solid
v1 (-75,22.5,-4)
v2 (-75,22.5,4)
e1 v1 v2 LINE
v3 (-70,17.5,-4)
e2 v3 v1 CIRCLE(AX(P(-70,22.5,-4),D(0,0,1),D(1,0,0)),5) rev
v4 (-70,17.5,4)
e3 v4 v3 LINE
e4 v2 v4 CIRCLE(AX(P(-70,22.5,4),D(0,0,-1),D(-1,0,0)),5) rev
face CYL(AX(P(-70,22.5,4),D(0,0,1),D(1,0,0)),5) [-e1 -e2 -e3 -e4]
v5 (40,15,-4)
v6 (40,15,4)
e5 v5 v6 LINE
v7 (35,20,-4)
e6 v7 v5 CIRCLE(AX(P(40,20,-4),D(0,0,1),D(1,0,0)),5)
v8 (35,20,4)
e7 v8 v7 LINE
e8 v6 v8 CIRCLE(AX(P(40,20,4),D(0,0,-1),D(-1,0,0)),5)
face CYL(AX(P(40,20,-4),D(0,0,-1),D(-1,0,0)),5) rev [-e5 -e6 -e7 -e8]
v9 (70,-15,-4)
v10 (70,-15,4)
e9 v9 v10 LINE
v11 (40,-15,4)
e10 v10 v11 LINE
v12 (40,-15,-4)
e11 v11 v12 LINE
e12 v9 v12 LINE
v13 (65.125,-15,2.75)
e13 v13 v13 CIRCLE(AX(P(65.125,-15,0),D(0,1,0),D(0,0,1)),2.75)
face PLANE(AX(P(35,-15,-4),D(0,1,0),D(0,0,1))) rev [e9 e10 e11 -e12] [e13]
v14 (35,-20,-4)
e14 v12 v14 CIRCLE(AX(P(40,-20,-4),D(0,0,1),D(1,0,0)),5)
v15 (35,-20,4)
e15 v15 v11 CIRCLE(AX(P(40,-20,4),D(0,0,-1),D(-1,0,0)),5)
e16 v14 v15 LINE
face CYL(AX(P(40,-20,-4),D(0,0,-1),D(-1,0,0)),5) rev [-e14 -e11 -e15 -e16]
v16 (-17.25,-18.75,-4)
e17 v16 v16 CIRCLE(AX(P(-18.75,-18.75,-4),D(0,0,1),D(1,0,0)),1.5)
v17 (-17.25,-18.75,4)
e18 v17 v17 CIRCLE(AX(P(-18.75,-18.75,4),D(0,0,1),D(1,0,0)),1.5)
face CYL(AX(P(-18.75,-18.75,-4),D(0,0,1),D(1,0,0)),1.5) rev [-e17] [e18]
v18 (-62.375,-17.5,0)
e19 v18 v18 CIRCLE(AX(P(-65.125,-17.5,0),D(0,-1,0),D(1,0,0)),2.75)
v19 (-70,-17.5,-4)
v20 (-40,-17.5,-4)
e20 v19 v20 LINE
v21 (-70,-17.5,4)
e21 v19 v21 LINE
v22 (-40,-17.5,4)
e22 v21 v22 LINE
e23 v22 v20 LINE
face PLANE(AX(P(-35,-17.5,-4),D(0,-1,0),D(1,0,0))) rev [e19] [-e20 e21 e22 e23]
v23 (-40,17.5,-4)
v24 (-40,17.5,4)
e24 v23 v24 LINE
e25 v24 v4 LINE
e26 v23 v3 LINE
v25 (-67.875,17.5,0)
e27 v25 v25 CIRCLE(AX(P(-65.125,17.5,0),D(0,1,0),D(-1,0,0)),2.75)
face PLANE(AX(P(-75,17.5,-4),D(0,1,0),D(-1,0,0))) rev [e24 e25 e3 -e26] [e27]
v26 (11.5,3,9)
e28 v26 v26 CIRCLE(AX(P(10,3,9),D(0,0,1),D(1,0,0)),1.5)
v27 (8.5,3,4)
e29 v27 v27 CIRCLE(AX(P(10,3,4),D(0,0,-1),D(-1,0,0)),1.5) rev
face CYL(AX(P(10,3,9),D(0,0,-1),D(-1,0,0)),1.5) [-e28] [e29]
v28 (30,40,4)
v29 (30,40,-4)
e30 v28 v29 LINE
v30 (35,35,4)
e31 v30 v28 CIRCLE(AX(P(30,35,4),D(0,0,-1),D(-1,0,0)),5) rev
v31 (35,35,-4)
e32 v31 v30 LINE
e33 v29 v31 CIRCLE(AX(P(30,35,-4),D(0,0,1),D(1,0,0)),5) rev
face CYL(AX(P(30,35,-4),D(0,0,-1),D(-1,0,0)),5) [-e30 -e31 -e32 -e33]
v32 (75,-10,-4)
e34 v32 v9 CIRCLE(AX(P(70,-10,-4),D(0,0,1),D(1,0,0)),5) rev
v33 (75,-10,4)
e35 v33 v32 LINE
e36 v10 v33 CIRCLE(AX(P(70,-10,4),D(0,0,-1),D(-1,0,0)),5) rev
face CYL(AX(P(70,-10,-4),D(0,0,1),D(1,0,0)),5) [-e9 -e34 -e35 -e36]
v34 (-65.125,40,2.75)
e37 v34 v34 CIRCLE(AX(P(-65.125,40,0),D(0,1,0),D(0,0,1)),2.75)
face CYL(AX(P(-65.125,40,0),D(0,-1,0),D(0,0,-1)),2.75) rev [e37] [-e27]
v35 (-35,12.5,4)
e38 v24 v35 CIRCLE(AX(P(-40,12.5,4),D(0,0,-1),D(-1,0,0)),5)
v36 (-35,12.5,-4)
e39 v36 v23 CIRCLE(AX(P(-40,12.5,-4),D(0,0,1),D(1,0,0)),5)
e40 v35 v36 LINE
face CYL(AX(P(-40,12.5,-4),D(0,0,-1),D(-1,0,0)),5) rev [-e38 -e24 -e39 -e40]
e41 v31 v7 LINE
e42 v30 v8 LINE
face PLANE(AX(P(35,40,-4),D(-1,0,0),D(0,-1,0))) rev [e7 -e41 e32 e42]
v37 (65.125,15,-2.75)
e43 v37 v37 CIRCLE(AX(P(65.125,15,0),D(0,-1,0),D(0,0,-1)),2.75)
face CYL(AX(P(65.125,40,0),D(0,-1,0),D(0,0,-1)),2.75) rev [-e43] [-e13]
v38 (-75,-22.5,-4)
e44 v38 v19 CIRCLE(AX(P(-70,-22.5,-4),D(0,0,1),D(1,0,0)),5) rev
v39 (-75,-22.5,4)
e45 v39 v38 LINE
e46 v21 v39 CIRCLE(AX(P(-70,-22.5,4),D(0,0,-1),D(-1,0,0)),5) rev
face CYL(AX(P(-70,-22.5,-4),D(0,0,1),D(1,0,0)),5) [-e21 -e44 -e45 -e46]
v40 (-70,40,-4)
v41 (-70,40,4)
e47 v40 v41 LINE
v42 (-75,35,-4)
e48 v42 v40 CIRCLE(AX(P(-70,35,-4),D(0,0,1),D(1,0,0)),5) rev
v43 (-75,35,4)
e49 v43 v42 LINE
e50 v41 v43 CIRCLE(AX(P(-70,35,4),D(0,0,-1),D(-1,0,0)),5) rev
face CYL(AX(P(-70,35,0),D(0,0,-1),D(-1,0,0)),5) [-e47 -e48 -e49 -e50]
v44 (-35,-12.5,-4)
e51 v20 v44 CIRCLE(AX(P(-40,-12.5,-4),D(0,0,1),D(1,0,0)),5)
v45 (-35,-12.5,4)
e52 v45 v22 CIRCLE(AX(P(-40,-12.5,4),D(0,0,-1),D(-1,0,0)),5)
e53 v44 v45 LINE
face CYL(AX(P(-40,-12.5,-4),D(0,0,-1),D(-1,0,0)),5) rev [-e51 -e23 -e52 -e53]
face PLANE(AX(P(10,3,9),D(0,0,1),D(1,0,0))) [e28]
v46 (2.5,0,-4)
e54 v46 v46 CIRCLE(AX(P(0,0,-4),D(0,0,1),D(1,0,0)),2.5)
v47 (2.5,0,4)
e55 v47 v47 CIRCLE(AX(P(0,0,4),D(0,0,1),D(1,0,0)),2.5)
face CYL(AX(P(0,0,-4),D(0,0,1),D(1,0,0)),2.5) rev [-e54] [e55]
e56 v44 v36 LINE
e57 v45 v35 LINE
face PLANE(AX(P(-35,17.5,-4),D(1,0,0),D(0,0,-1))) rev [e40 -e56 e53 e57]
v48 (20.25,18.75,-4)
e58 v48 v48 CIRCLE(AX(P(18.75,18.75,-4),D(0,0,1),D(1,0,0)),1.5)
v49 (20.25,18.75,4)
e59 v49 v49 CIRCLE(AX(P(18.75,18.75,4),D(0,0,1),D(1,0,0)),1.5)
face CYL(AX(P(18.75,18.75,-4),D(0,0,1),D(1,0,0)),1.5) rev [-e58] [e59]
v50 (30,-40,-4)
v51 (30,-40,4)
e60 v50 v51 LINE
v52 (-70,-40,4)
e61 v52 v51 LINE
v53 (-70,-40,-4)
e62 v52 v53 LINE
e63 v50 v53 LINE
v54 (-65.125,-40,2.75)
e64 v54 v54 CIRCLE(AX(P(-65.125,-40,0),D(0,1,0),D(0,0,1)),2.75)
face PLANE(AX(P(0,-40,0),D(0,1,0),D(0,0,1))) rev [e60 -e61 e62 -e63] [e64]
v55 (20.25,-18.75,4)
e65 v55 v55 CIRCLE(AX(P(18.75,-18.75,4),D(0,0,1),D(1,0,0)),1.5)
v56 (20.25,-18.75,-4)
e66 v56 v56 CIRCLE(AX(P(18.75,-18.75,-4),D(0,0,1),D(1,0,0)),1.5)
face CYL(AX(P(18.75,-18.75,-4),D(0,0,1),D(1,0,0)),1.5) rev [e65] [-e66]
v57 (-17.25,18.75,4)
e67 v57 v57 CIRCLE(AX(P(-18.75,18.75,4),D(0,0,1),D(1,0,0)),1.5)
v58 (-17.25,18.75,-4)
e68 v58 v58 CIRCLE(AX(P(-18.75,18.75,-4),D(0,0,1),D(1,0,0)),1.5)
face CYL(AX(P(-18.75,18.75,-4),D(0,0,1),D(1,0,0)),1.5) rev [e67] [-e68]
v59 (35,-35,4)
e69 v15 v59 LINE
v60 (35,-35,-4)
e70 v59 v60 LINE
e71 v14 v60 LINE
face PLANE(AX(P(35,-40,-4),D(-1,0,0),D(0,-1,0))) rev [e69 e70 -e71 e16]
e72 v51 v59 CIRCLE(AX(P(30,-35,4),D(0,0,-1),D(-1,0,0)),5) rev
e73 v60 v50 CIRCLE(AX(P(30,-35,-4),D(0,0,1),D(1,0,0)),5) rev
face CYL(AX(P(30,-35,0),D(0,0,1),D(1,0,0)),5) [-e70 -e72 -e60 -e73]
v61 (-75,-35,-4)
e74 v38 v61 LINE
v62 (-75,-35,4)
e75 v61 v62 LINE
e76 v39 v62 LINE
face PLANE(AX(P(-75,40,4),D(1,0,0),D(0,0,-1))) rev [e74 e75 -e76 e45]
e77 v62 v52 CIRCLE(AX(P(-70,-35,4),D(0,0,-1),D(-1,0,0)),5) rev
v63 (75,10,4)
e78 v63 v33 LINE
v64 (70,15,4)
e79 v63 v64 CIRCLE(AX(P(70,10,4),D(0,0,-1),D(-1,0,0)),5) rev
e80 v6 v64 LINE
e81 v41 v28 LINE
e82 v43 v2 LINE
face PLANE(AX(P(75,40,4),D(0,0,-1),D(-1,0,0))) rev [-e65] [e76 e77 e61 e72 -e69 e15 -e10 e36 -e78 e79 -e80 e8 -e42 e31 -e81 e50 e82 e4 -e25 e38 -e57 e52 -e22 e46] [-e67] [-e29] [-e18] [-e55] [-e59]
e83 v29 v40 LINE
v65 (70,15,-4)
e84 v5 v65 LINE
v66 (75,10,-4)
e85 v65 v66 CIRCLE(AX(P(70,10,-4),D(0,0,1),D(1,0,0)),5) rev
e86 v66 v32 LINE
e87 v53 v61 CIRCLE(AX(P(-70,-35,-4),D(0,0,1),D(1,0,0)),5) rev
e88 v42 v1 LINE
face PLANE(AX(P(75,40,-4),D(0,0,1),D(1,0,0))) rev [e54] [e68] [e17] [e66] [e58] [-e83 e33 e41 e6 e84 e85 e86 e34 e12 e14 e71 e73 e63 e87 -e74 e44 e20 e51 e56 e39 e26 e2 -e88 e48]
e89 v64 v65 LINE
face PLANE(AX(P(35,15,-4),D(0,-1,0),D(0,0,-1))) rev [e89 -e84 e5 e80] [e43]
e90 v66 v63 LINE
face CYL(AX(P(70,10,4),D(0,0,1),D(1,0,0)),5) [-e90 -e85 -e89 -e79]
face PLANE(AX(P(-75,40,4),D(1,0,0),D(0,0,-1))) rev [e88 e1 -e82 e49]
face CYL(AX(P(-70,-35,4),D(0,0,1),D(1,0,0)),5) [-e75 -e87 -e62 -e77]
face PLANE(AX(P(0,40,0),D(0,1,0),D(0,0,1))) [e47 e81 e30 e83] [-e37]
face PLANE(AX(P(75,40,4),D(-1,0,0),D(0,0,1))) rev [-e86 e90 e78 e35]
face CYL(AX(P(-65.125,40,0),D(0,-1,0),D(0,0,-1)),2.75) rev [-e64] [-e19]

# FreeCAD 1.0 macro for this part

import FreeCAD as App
import Part
import Sketcher
from FreeCAD import Vector
Q = App.Units.Quantity


def edges_at(feature, points):
    """Names of the edges that pass closest to the given points."""
    edges = feature.Shape.Edges
    near = lambda p: min(range(len(edges)), key=lambda i: edges[i].distToShape(Part.Vertex(*p))[0])
    return sorted({f"Edge{near(p) + 1}" for p in points})


def add_polygon(sketch, points):
    """Adds a closed chain of lines whose ends are joined by coincident constraints."""
    first, n = sketch.GeometryCount, len(points)
    for a, b in zip(points, points[1:] + points[:1]):
        sketch.addGeometry(Part.LineSegment(App.Vector(*a, 0), App.Vector(*b, 0)), False)
    for i in range(n):
        sketch.addConstraint(Sketcher.Constraint("Coincident", first + i, 2, first + (i + 1) % n, 1))

doc = App.newDocument("Part")
body = doc.addObject("PartDesign::Body", "Body")

# Sketch on XZ plane
sketch1 = doc.addObject("Sketcher::SketchObject", "Sketch")
body.addObject(sketch1)
sketch1.AttachmentSupport = (doc.XZ_Plane, [""])
sketch1.MapMode = "FlatFace"
add_polygon(sketch1, [(-75, -4), (-75, 4), (75, 4), (75, -4)])  # lines 0-3
sketch1.addGeometry(Part.Circle(Vector(-65.125, 0, 0), Vector(0, 0, 1), 2.75), False)  # 4
sketch1.addGeometry(Part.Circle(Vector(65.125, 0, 0), Vector(0, 0, 1), 2.75), False)  # 5
sketch1.addConstraint(Sketcher.Constraint("Vertical", 0))
sketch1.addConstraint(Sketcher.Constraint("Horizontal", 1))
sketch1.addConstraint(Sketcher.Constraint("Vertical", 2))
sketch1.addConstraint(Sketcher.Constraint("Horizontal", 3))
sketch1.addConstraint(Sketcher.Constraint("Equal", 4, 5))
sketch1.addConstraint(Sketcher.Constraint("Symmetric", 4, 3, 5, 3, -1, 1))
sketch1.addConstraint(Sketcher.Constraint("Symmetric", 0, 2, 2, 2, -1, 1))
sketch1.addConstraint(Sketcher.Constraint("PointOnObject", 4, 3, -1))
sketch1.addConstraint(Sketcher.Constraint("Diameter", 4, Q("5.5 mm")))
sketch1.addConstraint(Sketcher.Constraint("DistanceX", 1, 1, 1, 2, Q("150 mm")))
sketch1.addConstraint(Sketcher.Constraint("DistanceY", 0, 1, 0, 2, Q("8 mm")))
sketch1.addConstraint(Sketcher.Constraint("DistanceX", 4, 3, 5, 3, Q("130.25 mm")))
pad1 = doc.addObject("PartDesign::Pad", "Pad")
body.addObject(pad1)
pad1.Profile = sketch1
pad1.Length = 80
pad1.Midplane = True

# Sketch on XY plane
sketch2 = doc.addObject("Sketcher::SketchObject", "Sketch001")
body.addObject(sketch2)
sketch2.AttachmentSupport = (doc.XY_Plane, [""])
sketch2.MapMode = "FlatFace"
sketch2.AttachmentOffset = App.Placement(Vector(0, 0, 4), App.Rotation())
sketch2.addGeometry(Part.Circle(Vector(-18.75, 18.75, 0), Vector(0, 0, 1), 1.5), False)
sketch2.addGeometry(Part.Circle(Vector(18.75, 18.75, 0), Vector(0, 0, 1), 1.5), False)
sketch2.addGeometry(Part.Circle(Vector(18.75, -18.75, 0), Vector(0, 0, 1), 1.5), False)
sketch2.addGeometry(Part.Circle(Vector(-18.75, -18.75, 0), Vector(0, 0, 1), 1.5), False)
sketch2.addConstraint(Sketcher.Constraint("Equal", 0, 1))
sketch2.addConstraint(Sketcher.Constraint("Equal", 1, 2))
sketch2.addConstraint(Sketcher.Constraint("Equal", 2, 3))
sketch2.addConstraint(Sketcher.Constraint("Symmetric", 0, 3, 2, 3, -1, 1))
sketch2.addConstraint(Sketcher.Constraint("Symmetric", 1, 3, 3, 3, -1, 1))
sketch2.addConstraint(Sketcher.Constraint("Symmetric", 0, 3, 1, 3, -2))
sketch2.addConstraint(Sketcher.Constraint("Diameter", 0, Q("3 mm")))
sketch2.addConstraint(Sketcher.Constraint("DistanceX", 0, 3, 1, 3, Q("37.5 mm")))
sketch2.addConstraint(Sketcher.Constraint("DistanceY", 2, 3, 1, 3, Q("37.5 mm")))
pocket1 = doc.addObject("PartDesign::Pocket", "Pocket")
body.addObject(pocket1)
pocket1.Profile = sketch2
pocket1.Type = "ThroughAll"

# Sketch on XY plane
sketch3 = doc.addObject("Sketcher::SketchObject", "Sketch002")
body.addObject(sketch3)
sketch3.AttachmentSupport = (doc.XY_Plane, [""])
sketch3.MapMode = "FlatFace"
sketch3.AttachmentOffset = App.Placement(Vector(0, 0, 4), App.Rotation())
add_polygon(sketch3, [(-75, 17.5), (-75, -17.5), (-35, -17.5), (-35, 17.5)])  # lines 0-3
add_polygon(sketch3, [(35, 40), (35, 15), (75, 15), (75, 40)])  # lines 4-7
add_polygon(sketch3, [(35, -15), (35, -40), (75, -40), (75, -15)])  # lines 8-11
sketch3.addConstraint(Sketcher.Constraint("Vertical", 0))
sketch3.addConstraint(Sketcher.Constraint("Horizontal", 1))
sketch3.addConstraint(Sketcher.Constraint("Vertical", 2))
sketch3.addConstraint(Sketcher.Constraint("Horizontal", 3))
sketch3.addConstraint(Sketcher.Constraint("Vertical", 4))
sketch3.addConstraint(Sketcher.Constraint("Horizontal", 5))
sketch3.addConstraint(Sketcher.Constraint("Vertical", 6))
sketch3.addConstraint(Sketcher.Constraint("Horizontal", 7))
sketch3.addConstraint(Sketcher.Constraint("Vertical", 8))
sketch3.addConstraint(Sketcher.Constraint("Horizontal", 9))
sketch3.addConstraint(Sketcher.Constraint("Vertical", 10))
sketch3.addConstraint(Sketcher.Constraint("Horizontal", 11))
sketch3.addConstraint(Sketcher.Constraint("Symmetric", 7, 2, 8, 2, -1))
sketch3.addConstraint(Sketcher.Constraint("Symmetric", 5, 2, 10, 2, -1))
sketch3.addConstraint(Sketcher.Constraint("Equal", 3, 5))
sketch3.addConstraint(Sketcher.Constraint("DistanceX", 1, 1, 1, 2, Q("40 mm")))
sketch3.addConstraint(Sketcher.Constraint("DistanceY", 0, 2, 0, 1, Q("35 mm")))
sketch3.addConstraint(Sketcher.Constraint("DistanceY", 4, 2, 4, 1, Q("25 mm")))
sketch3.addConstraint(Sketcher.Constraint("DistanceX", 0, 2, -1, 1, Q("75 mm")))
sketch3.addConstraint(Sketcher.Constraint("DistanceX", -1, 1, 4, 2, Q("35 mm")))
sketch3.addConstraint(Sketcher.Constraint("DistanceY", -1, 1, 4, 2, Q("15 mm")))
sketch3.addConstraint(Sketcher.Constraint("DistanceY", 0, 2, -1, 1, Q("17.5 mm")))
pocket2 = doc.addObject("PartDesign::Pocket", "Pocket001")
body.addObject(pocket2)
pocket2.Profile = sketch3
pocket2.Type = "ThroughAll"
doc.recompute()

fillet = doc.addObject("PartDesign::Fillet", "Fillet")
body.addObject(fillet)
fillet.Base = (pocket2, edges_at(pocket2, [
    (-75, 40, 0),
    (-75, -17.5, 0),
    (-75, 17.5, 0),
    (-35, 17.5, 0),
    (-35, -17.5, 0),
    (-75, -40, 0),
    (75, 15, 0),
    (35, 15, 0),
    (35, 40, 0),
    (35, -15, 0),
    (75, -15, 0),
    (35, -40, 0),
]))
fillet.Radius = 5

# Sketch on XY plane
sketch4 = doc.addObject("Sketcher::SketchObject", "Sketch003")
body.addObject(sketch4)
sketch4.AttachmentSupport = (doc.XY_Plane, [""])
sketch4.MapMode = "FlatFace"
sketch4.AttachmentOffset = App.Placement(Vector(0, 0, 4), App.Rotation())
sketch4.addGeometry(Part.Circle(Vector(0, 0, 0), Vector(0, 0, 1), 2.5), False)
sketch4.addConstraint(Sketcher.Constraint("Coincident", 0, 3, -1, 1))
sketch4.addConstraint(Sketcher.Constraint("Diameter", 0, Q("5 mm")))
pocket3 = doc.addObject("PartDesign::Pocket", "Pocket002")
body.addObject(pocket3)
pocket3.Profile = sketch4
pocket3.Type = "ThroughAll"

# Sketch on XY plane
sketch5 = doc.addObject("Sketcher::SketchObject", "Sketch004")
body.addObject(sketch5)
sketch5.AttachmentSupport = (doc.XY_Plane, [""])
sketch5.MapMode = "FlatFace"
sketch5.AttachmentOffset = App.Placement(Vector(0, 0, 4), App.Rotation())
sketch5.addGeometry(Part.Circle(Vector(10, 3, 0), Vector(0, 0, 1), 1.5), False)
sketch5.addConstraint(Sketcher.Constraint("Diameter", 0, Q("3 mm")))
sketch5.addConstraint(Sketcher.Constraint("DistanceX", -1, 1, 0, 3, Q("10 mm")))
sketch5.addConstraint(Sketcher.Constraint("DistanceY", -1, 1, 0, 3, Q("3 mm")))
pad2 = doc.addObject("PartDesign::Pad", "Pad001")
body.addObject(pad2)
pad2.Profile = sketch5
pad2.Length = 5

doc.recompute()
